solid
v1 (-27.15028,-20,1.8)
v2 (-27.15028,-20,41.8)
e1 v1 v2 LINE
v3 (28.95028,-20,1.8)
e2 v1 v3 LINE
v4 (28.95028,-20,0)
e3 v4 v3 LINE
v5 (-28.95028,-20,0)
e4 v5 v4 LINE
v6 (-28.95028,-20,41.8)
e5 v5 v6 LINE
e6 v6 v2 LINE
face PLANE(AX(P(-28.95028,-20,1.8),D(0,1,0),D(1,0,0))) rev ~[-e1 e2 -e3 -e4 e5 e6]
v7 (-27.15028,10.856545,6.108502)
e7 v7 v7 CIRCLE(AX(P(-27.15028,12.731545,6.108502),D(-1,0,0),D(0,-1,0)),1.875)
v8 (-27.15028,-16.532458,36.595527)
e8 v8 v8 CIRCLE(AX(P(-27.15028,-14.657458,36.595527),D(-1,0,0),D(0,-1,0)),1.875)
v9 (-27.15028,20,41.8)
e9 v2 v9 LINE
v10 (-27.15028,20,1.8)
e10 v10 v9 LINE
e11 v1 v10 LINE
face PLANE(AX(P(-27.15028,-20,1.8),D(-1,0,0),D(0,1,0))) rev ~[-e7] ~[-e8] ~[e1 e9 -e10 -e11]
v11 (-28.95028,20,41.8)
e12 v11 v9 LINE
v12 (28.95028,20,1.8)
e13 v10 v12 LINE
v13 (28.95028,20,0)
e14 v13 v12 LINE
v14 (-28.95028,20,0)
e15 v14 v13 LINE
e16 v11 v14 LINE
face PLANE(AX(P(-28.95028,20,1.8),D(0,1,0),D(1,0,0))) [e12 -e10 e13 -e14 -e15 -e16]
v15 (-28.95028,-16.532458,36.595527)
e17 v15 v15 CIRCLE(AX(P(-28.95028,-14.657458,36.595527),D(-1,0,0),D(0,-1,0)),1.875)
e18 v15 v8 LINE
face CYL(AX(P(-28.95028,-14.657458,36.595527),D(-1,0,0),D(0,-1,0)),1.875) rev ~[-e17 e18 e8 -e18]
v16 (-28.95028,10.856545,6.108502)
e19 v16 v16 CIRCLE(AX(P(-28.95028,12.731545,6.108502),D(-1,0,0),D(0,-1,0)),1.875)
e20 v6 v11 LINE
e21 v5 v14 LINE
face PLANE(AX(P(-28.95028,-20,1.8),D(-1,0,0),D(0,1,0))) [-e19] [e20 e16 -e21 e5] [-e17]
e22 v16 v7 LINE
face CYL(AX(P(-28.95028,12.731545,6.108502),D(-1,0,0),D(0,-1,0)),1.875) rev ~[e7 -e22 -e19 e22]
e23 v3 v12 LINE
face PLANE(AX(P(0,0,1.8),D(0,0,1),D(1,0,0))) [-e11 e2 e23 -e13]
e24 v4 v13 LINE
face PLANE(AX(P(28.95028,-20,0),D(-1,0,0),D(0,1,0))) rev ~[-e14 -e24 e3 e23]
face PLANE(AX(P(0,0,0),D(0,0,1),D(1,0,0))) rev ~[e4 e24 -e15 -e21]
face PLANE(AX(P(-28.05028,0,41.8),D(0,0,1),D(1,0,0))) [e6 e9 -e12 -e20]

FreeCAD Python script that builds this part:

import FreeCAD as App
import Part
import Sketcher
from FreeCAD import Vector


def add_polygon(sketch, points):
    """Adds a closed chain of lines whose ends are joined by coincident constraints."""
    first, n = sketch.GeometryCount, len(points)
    for a, b in zip(points, points[1:] + points[:1]):
        sketch.addGeometry(Part.LineSegment(App.Vector(*a, 0), App.Vector(*b, 0)), False)
    for i in range(n):
        sketch.addConstraint(Sketcher.Constraint("Coincident", first + i, 2, first + (i + 1) % n, 1))

doc = App.newDocument("Part")
body = doc.addObject("PartDesign::Body", "Body")

# Sketch on XY plane
sketch1 = doc.addObject("Sketcher::SketchObject", "Sketch")
body.addObject(sketch1)
sketch1.AttachmentSupport = (doc.XY_Plane, [""])
sketch1.MapMode = "FlatFace"
add_polygon(sketch1, [(-29, 20), (-29, -20), (29, -20), (29, 20)])  # lines 0-3
sketch1.addConstraint([
    Sketcher.Constraint("Vertical", 0),
    Sketcher.Constraint("Horizontal", 1),
    Sketcher.Constraint("Vertical", 2),
    Sketcher.Constraint("Horizontal", 3),
    Sketcher.Constraint("Symmetric", 0, 2, 2, 2, -1, 1),
    Sketcher.Constraint("DistanceY", 0, 2, 0, 1, 40.0),
    Sketcher.Constraint("DistanceX", 1, 1, 1, 2, 57.90056),
])
pad1 = doc.addObject("PartDesign::Pad", "Pad")
body.addObject(pad1)
pad1.Profile = sketch1
pad1.Length = 1.8

# Sketch on XY plane
sketch2 = doc.addObject("Sketcher::SketchObject", "Sketch001")
body.addObject(sketch2)
sketch2.AttachmentSupport = (doc.XY_Plane, [""])
sketch2.MapMode = "FlatFace"
sketch2.AttachmentOffset = App.Placement(Vector(0, 0, 1.8), App.Rotation())
add_polygon(sketch2, [(-29, 20), (-29, -20), (-27.2, -20), (-27.2, 20)])  # lines 0-3
sketch2.addConstraint([
    Sketcher.Constraint("Vertical", 0),
    Sketcher.Constraint("Horizontal", 1),
    Sketcher.Constraint("Vertical", 2),
    Sketcher.Constraint("Horizontal", 3),
    Sketcher.Constraint("DistanceY", 0, 2, 0, 1, 40.0),
    Sketcher.Constraint("DistanceX", 1, 1, 1, 2, 1.8),
    Sketcher.Constraint("DistanceY", 0, 2, -1, 1, 20.0),
    Sketcher.Constraint("DistanceX", 0, 2, -1, 1, 28.95028),
])
pad2 = doc.addObject("PartDesign::Pad", "Pad001")
body.addObject(pad2)
pad2.Profile = sketch2
pad2.Length = 40

# Sketch on YZ plane
sketch3 = doc.addObject("Sketcher::SketchObject", "Sketch002")
body.addObject(sketch3)
sketch3.AttachmentSupport = (doc.YZ_Plane, [""])
sketch3.MapMode = "FlatFace"
sketch3.AttachmentOffset = App.Placement(Vector(0, 0, -28.95028), App.Rotation())
sketch3.addGeometry([
    Part.Circle(Vector(-14.7, 36.6, 0), Vector(0, 0, 1), 1.9),
    Part.Circle(Vector(12.7, 6.1, 0), Vector(0, 0, 1), 1.9),
], False)
sketch3.addConstraint([
    Sketcher.Constraint("Equal", 0, 1),
    Sketcher.Constraint("Diameter", 0, 3.75),
    Sketcher.Constraint("DistanceY", -1, 1, 1, 3, 6.108502),
    Sketcher.Constraint("DistanceX", 0, 3, -1, 1, 14.657458),
    Sketcher.Constraint("DistanceY", -1, 1, 0, 3, 36.595527),
    Sketcher.Constraint("DistanceX", -1, 1, 1, 3, 12.731545),
])
pocket1 = doc.addObject("PartDesign::Pocket", "Pocket")
body.addObject(pocket1)
pocket1.Profile = sketch3
pocket1.Length = 9.2
pocket1.Reversed = True

doc.recompute()
